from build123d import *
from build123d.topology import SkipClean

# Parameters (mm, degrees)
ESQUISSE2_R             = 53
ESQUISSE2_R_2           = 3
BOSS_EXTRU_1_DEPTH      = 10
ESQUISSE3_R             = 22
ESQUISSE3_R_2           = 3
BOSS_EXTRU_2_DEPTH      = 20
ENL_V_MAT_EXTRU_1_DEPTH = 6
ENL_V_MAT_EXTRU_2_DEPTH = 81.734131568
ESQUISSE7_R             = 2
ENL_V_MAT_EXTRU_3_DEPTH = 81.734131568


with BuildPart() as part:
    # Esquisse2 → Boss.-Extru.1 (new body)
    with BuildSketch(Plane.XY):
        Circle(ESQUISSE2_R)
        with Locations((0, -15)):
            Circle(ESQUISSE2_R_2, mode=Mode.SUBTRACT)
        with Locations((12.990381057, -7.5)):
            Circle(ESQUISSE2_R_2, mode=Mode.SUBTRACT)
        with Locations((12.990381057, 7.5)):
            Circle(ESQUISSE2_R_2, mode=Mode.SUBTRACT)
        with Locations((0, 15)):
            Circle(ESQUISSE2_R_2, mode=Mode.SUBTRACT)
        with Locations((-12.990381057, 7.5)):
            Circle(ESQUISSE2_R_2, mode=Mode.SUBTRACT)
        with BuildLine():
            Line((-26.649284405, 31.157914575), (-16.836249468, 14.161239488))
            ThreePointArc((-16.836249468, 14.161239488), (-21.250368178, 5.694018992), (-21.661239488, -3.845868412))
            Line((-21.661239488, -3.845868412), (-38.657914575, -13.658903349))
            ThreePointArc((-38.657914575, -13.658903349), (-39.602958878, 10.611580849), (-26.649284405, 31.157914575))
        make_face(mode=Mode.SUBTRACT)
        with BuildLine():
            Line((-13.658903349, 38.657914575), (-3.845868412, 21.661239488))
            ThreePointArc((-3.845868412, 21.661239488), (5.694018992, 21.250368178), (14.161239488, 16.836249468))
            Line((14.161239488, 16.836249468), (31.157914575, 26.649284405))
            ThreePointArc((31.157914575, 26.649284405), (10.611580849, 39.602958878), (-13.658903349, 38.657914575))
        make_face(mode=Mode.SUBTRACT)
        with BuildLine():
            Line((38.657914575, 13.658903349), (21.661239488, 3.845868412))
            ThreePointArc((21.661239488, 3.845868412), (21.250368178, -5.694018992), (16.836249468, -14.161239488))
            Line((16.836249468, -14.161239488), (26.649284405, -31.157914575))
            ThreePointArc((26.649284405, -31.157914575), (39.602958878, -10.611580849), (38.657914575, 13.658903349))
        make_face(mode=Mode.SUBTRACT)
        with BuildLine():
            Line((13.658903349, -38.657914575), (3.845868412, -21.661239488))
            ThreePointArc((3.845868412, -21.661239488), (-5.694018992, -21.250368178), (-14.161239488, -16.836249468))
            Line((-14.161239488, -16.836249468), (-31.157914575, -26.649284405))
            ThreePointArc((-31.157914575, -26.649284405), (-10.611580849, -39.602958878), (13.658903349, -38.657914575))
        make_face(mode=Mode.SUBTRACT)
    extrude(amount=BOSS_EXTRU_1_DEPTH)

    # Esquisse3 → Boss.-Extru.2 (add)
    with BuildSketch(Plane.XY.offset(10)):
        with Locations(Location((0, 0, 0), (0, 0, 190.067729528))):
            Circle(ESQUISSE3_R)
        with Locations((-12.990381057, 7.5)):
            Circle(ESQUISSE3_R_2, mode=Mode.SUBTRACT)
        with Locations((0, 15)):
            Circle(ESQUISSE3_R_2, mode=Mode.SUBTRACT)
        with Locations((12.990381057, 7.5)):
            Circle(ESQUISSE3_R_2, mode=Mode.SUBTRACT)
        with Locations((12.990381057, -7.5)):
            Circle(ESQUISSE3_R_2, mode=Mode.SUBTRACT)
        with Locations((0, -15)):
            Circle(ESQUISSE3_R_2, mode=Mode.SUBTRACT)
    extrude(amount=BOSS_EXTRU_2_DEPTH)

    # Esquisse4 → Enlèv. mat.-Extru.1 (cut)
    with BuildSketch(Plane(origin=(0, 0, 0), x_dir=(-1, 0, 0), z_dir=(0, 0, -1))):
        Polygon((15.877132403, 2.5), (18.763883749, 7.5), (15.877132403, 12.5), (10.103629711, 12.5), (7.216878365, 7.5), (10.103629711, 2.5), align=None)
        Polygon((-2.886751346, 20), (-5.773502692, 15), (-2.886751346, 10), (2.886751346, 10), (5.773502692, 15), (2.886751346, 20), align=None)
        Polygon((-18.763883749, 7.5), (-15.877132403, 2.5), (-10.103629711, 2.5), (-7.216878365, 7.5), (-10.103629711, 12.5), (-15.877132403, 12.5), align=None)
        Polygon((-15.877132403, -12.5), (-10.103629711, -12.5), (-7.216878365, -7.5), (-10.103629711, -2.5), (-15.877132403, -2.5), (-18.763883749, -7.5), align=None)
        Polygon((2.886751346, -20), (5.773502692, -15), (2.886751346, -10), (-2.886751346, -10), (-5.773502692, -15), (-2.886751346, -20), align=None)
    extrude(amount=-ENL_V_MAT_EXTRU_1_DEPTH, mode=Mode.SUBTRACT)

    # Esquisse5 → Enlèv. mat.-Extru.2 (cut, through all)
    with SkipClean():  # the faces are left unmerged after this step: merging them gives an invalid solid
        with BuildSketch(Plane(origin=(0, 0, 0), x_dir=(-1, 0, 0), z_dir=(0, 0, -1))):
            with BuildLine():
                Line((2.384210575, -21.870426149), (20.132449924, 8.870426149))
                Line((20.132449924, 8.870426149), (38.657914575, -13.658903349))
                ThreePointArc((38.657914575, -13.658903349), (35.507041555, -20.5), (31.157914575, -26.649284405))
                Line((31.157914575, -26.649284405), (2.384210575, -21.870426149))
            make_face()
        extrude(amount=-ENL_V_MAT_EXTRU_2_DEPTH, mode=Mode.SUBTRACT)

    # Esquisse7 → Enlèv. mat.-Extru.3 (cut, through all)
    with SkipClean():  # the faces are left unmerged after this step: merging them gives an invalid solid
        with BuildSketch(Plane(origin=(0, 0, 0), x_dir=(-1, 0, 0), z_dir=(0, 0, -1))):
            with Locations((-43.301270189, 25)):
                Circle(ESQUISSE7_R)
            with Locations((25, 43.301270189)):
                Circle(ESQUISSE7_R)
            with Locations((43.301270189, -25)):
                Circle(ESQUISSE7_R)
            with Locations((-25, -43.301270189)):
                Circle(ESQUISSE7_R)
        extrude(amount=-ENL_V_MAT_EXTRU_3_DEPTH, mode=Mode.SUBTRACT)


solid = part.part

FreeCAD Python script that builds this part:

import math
import FreeCAD as App
import Part
import Sketcher

V = App.Vector
Q = App.Units.Quantity


def add_polygon(sketch, points):
    """Adds a closed chain of lines whose ends are joined by coincident constraints."""
    first, n = sketch.GeometryCount, len(points)
    for a, b in zip(points, points[1:] + points[:1]):
        sketch.addGeometry(Part.LineSegment(App.Vector(*a, 0), App.Vector(*b, 0)), False)
    for i in range(n):
        sketch.addConstraint(Sketcher.Constraint("Coincident", first + i, 2, first + (i + 1) % n, 1))

doc = App.newDocument("Part")
body = doc.addObject("PartDesign::Body", "Body")

sketch1 = body.newObject("Sketcher::SketchObject", "Sketch")
sketch1.AttachmentSupport = (doc.getObject("XY_Plane"), [""])
sketch1.MapMode = "FlatFace"
sketch1.addGeometry([
    Part.Circle(V(0, 0, 0), V(0, 0, 1), 53),
    Part.LineSegment(V(3.845868, -21.661239, 0), V(13.658903, -38.657915, 0)),
    Part.ArcOfCircle(Part.Circle(V(0, 0, 0), V(0, 0, 1), 41), math.radians(-139.459714), math.radians(-70.540286)),
    Part.LineSegment(V(-31.157915, -26.649284, 0), V(-14.161239, -16.836249, 0)),
    Part.ArcOfCircle(Part.Circle(V(0, 0, 0), V(0, 0, 1), 22), math.radians(-130.06773), math.radians(-79.93227)),
    Part.Circle(V(0, -15, 0), V(0, 0, 1), 3),
    Part.Circle(V(12.990381, -7.5, 0), V(0, 0, 1), 3),
    Part.LineSegment(V(21.661239, 3.845868, 0), V(38.657915, 13.658903, 0)),
    Part.ArcOfCircle(Part.Circle(V(0, 0, 0), V(0, 0, 1), 41), math.radians(-49.459714), math.radians(19.459714)),
    Part.LineSegment(V(26.649284, -31.157915, 0), V(16.836249, -14.161239, 0)),
    Part.ArcOfCircle(Part.Circle(V(0, 0, 0), V(0, 0, 1), 22), math.radians(-40.06773), math.radians(10.06773)),
    Part.ArcOfCircle(Part.Circle(V(0, 0, 0), V(0, 0, 1), 41), math.radians(130.540286), math.radians(199.459714)),
    Part.LineSegment(V(-26.649284, 31.157915, 0), V(-16.836249, 14.161239, 0)),
    Part.ArcOfCircle(Part.Circle(V(0, 0, 0), V(0, 0, 1), 22), math.radians(139.93227), math.radians(190.06773)),
    Part.LineSegment(V(-21.661239, -3.845868, 0), V(-38.657915, -13.658903, 0)),
    Part.Circle(V(-12.990381, 7.5, 0), V(0, 0, 1), 3),
    Part.Circle(V(0, 15, 0), V(0, 0, 1), 3),
    Part.Circle(V(12.990381, 7.5, 0), V(0, 0, 1), 3),
    Part.LineSegment(V(-3.845868, 21.661239, 0), V(-13.658903, 38.657915, 0)),
    Part.ArcOfCircle(Part.Circle(V(0, 0, 0), V(0, 0, 1), 41), math.radians(40.540286), math.radians(109.459714)),
    Part.LineSegment(V(31.157915, 26.649284, 0), V(14.161239, 16.836249, 0)),
    Part.ArcOfCircle(Part.Circle(V(0, 0, 0), V(0, 0, 1), 22), math.radians(49.93227), math.radians(100.06773)),
], False)
sketch1.addConstraint([
    Sketcher.Constraint("Coincident", 1, 2, 2, 2),
    Sketcher.Constraint("Coincident", 2, 1, 3, 1),
    Sketcher.Constraint("Coincident", 3, 2, 4, 1),
    Sketcher.Constraint("Coincident", 4, 2, 1, 1),
    Sketcher.Constraint("Coincident", 7, 2, 8, 2),
    Sketcher.Constraint("Coincident", 8, 1, 9, 1),
    Sketcher.Constraint("Coincident", 9, 2, 10, 1),
    Sketcher.Constraint("Coincident", 10, 2, 7, 1),
    Sketcher.Constraint("Coincident", 11, 1, 12, 1),
    Sketcher.Constraint("Coincident", 12, 2, 13, 1),
    Sketcher.Constraint("Coincident", 13, 2, 14, 1),
    Sketcher.Constraint("Coincident", 14, 2, 11, 2),
    Sketcher.Constraint("Coincident", 18, 2, 19, 2),
    Sketcher.Constraint("Coincident", 19, 1, 20, 1),
    Sketcher.Constraint("Coincident", 20, 2, 21, 1),
    Sketcher.Constraint("Coincident", 21, 2, 18, 1),
    Sketcher.Constraint("Coincident", 0, 3, -1, 1),
    Sketcher.Constraint("Coincident", 2, 3, -1, 1),
    Sketcher.Constraint("Coincident", 4, 3, -1, 1),
    Sketcher.Constraint("Coincident", 8, 3, -1, 1),
    Sketcher.Constraint("Coincident", 10, 3, -1, 1),
    Sketcher.Constraint("Coincident", 11, 3, -1, 1),
    Sketcher.Constraint("Coincident", 13, 3, -1, 1),
    Sketcher.Constraint("Coincident", 19, 3, -1, 1),
    Sketcher.Constraint("Coincident", 21, 3, -1, 1),
    Sketcher.Constraint("Equal", 5, 6),
    Sketcher.Constraint("Equal", 2, 8),
    Sketcher.Constraint("Equal", 4, 10),
    Sketcher.Constraint("Equal", 8, 11),
    Sketcher.Constraint("Equal", 10, 13),
    Sketcher.Constraint("Equal", 6, 15),
    Sketcher.Constraint("Equal", 15, 16),
    Sketcher.Constraint("Equal", 16, 17),
    Sketcher.Constraint("Equal", 11, 19),
    Sketcher.Constraint("Equal", 13, 21),
    Sketcher.Constraint("Symmetric", 6, 3, 15, 3, -1, 1),
    Sketcher.Constraint("Symmetric", 5, 3, 16, 3, -1, 1),
    Sketcher.Constraint("Symmetric", 15, 3, 17, 3, -2),
    Sketcher.Constraint("PointOnObject", 5, 3, -2),
    Sketcher.Constraint("Perpendicular", 1, 3),
    Sketcher.Constraint("Parallel", 3, 7),
    Sketcher.Constraint("Perpendicular", 7, 9),
    Sketcher.Constraint("Parallel", 9, 12),
    Sketcher.Constraint("Perpendicular", 12, 14),
    Sketcher.Constraint("Perpendicular", 14, 18),
    Sketcher.Constraint("Perpendicular", 18, 20),
    Sketcher.Constraint("Equal", 1, 3),
    Sketcher.Constraint("Equal", 3, 7),
    Sketcher.Constraint("Equal", 7, 9),
    Sketcher.Constraint("Equal", 9, 12),
    Sketcher.Constraint("Equal", 12, 14),
    Sketcher.Constraint("Equal", 14, 18),
    Sketcher.Constraint("Equal", 18, 20),
    Sketcher.Constraint("Diameter", 0, Q("106 mm")),
    Sketcher.Constraint("Diameter", 5, Q("6 mm")),
    Sketcher.Constraint("Radius", 2, Q("41 mm")),
    Sketcher.Constraint("Radius", 4, Q("22 mm")),
    Sketcher.Constraint("Angle", 1, Q("-60 deg")),
    Sketcher.Constraint("DistanceY", 5, 3, -1, 1, Q("15 mm")),
    Sketcher.Constraint("DistanceY", 6, 3, 17, 3, Q("15 mm")),
    Sketcher.Constraint("DistanceY", 1, 2, 8, 1, Q("7.5 mm")),
    Sketcher.Constraint("DistanceX", -1, 1, 6, 3, Q("12.990381 mm")),
])
pad1 = body.newObject("PartDesign::Pad", "Pad")
pad1.Profile = sketch1
pad1.Length = 10

sketch2 = body.newObject("Sketcher::SketchObject", "Sketch001")
sketch2.AttachmentSupport = (doc.getObject("XY_Plane"), [""])
sketch2.MapMode = "FlatFace"
sketch2.AttachmentOffset = App.Placement(V(0, 0, 10), App.Rotation())
sketch2.addGeometry([
    Part.Circle(V(0, 0, 0), V(0, 0, 1), 22),
    Part.Circle(V(0, 15, 0), V(0, 0, 1), 3),
    Part.Circle(V(12.990381, 7.5, 0), V(0, 0, 1), 3),
    Part.Circle(V(-12.990381, 7.5, 0), V(0, 0, 1), 3),
    Part.Circle(V(12.990381, -7.5, 0), V(0, 0, 1), 3),
    Part.Circle(V(0, -15, 0), V(0, 0, 1), 3),
], False)
sketch2.addConstraint([
    Sketcher.Constraint("Coincident", 0, 3, -1, 1),
    Sketcher.Constraint("Equal", 1, 2),
    Sketcher.Constraint("Equal", 2, 3),
    Sketcher.Constraint("Equal", 3, 4),
    Sketcher.Constraint("Equal", 4, 5),
    Sketcher.Constraint("Symmetric", 3, 3, 4, 3, -1, 1),
    Sketcher.Constraint("Symmetric", 1, 3, 5, 3, -1, 1),
    Sketcher.Constraint("Symmetric", 2, 3, 3, 3, -2),
    Sketcher.Constraint("PointOnObject", 1, 3, -2),
    Sketcher.Constraint("Diameter", 0, Q("44 mm")),
    Sketcher.Constraint("Diameter", 1, Q("6 mm")),
    Sketcher.Constraint("DistanceY", -1, 1, 1, 3, Q("15 mm")),
    Sketcher.Constraint("DistanceY", 4, 3, 2, 3, Q("15 mm")),
    Sketcher.Constraint("DistanceX", -1, 1, 2, 3, Q("12.990381 mm")),
])
pad2 = body.newObject("PartDesign::Pad", "Pad001")
pad2.Profile = sketch2
pad2.Length = 20

sketch3 = body.newObject("Sketcher::SketchObject", "Sketch002")
sketch3.AttachmentSupport = (doc.getObject("XY_Plane"), [""])
sketch3.MapMode = "FlatFace"
add_polygon(sketch3, [(-15.877132, 2.5), (-18.763884, 7.5), (-15.877132, 12.5), (-10.10363, 12.5), (-7.216878, 7.5), (-10.10363, 2.5)])
add_polygon(sketch3, [(2.886751, 20), (5.773503, 15), (2.886751, 10), (-2.886751, 10), (-5.773503, 15), (-2.886751, 20)])
add_polygon(sketch3, [(18.763884, 7.5), (15.877132, 2.5), (10.10363, 2.5), (7.216878, 7.5), (10.10363, 12.5), (15.877132, 12.5)])
add_polygon(sketch3, [(15.877132, -12.5), (10.10363, -12.5), (7.216878, -7.5), (10.10363, -2.5), (15.877132, -2.5), (18.763884, -7.5)])
add_polygon(sketch3, [(-2.886751, -20), (-5.773503, -15), (-2.886751, -10), (2.886751, -10), (5.773503, -15), (2.886751, -20)])
sketch3.addConstraint([
    Sketcher.Constraint("Horizontal", 2),
    Sketcher.Constraint("Horizontal", 5),
    Sketcher.Constraint("Horizontal", 8),
    Sketcher.Constraint("Horizontal", 11),
    Sketcher.Constraint("Horizontal", 13),
    Sketcher.Constraint("Horizontal", 16),
    Sketcher.Constraint("Horizontal", 18),
    Sketcher.Constraint("Horizontal", 21),
    Sketcher.Constraint("Horizontal", 26),
    Sketcher.Constraint("Horizontal", 29),
    Sketcher.Constraint("Symmetric", 2, 2, 18, 2, -1, 1),
    Sketcher.Constraint("Symmetric", 3, 2, 19, 2, -1, 1),
    Sketcher.Constraint("Symmetric", 4, 2, 20, 2, -1, 1),
    Sketcher.Constraint("Symmetric", 0, 2, 22, 2, -1, 1),
    Sketcher.Constraint("Symmetric", 6, 2, 24, 2, -1, 1),
    Sketcher.Constraint("Symmetric", 7, 2, 25, 2, -1, 1),
    Sketcher.Constraint("Symmetric", 9, 2, 27, 2, -1, 1),
    Sketcher.Constraint("Symmetric", 10, 2, 28, 2, -1, 1),
    Sketcher.Constraint("Symmetric", 6, 2, 9, 2, -2),
    Sketcher.Constraint("Symmetric", 5, 2, 12, 2, -2),
    Sketcher.Constraint("Symmetric", 3, 2, 14, 2, -2),
    Sketcher.Constraint("Symmetric", 2, 2, 15, 2, -2),
    Sketcher.Constraint("Symmetric", 0, 2, 17, 2, -2),
    Sketcher.Constraint("Parallel", 0, 3),
    Sketcher.Constraint("Parallel", 1, 4),
    Sketcher.Constraint("Parallel", 3, 6),
    Sketcher.Constraint("Parallel", 4, 7),
    Sketcher.Constraint("Parallel", 6, 9),
    Sketcher.Constraint("Parallel", 7, 10),
    Sketcher.Constraint("Parallel", 10, 12),
    Sketcher.Constraint("Parallel", 9, 14),
    Sketcher.Constraint("Parallel", 14, 17),
    Sketcher.Constraint("Parallel", 19, 22),
    Sketcher.Constraint("Parallel", 20, 23),
    Sketcher.Constraint("Parallel", 22, 24),
    Sketcher.Constraint("Parallel", 24, 27),
    Sketcher.Constraint("Horizontal", 0, 2, 3, 2),
    Sketcher.Constraint("Vertical", 2, 2, 4, 2),
    Sketcher.Constraint("Vertical", 8, 2, 10, 2),
    Sketcher.Constraint("Equal", 5, 8),
    Sketcher.Constraint("Equal", 4, 6),
    Sketcher.Constraint("Angle", 0, Q("120 deg")),
    Sketcher.Constraint("DistanceY", -1, 1, 6, 2, Q("15 mm")),
    Sketcher.Constraint("DistanceY", -1, 1, 7, 2, Q("10 mm")),
    Sketcher.Constraint("DistanceY", 18, 2, 13, 2, Q("15 mm")),
    Sketcher.Constraint("DistanceX", 2, 1, 2, 2, Q("5.773503 mm")),
    Sketcher.Constraint("DistanceX", 2, 2, -1, 1, Q("10.10363 mm")),
])
pocket1 = body.newObject("PartDesign::Pocket", "Pocket")
pocket1.Profile = sketch3
pocket1.Length = 6
pocket1.Reversed = True

sketch4 = body.newObject("Sketcher::SketchObject", "Sketch003")
sketch4.AttachmentSupport = (doc.getObject("XY_Plane"), [""])
sketch4.MapMode = "FlatFace"
sketch4.addGeometry([
    Part.LineSegment(V(-20.13245, 8.870426, 0), V(-2.384211, -21.870426, 0)),
    Part.LineSegment(V(-2.384211, -21.870426, 0), V(-31.157915, -26.649284, 0)),
    Part.ArcOfCircle(Part.Circle(V(0, 0, 0), V(0, 0, 1), 41), math.radians(-160.540286), math.radians(-139.459714)),
    Part.LineSegment(V(-38.657915, -13.658903, 0), V(-20.13245, 8.870426, 0)),
], False)
sketch4.addConstraint([
    Sketcher.Constraint("Coincident", 0, 2, 1, 1),
    Sketcher.Constraint("Coincident", 1, 2, 2, 2),
    Sketcher.Constraint("Coincident", 2, 1, 3, 1),
    Sketcher.Constraint("Coincident", 3, 2, 0, 1),
    Sketcher.Constraint("Coincident", 2, 3, -1, 1),
    Sketcher.Constraint("Equal", 1, 3),
    Sketcher.Constraint("Radius", 2, Q("41 mm")),
    Sketcher.Constraint("Angle", 0, Q("-60 deg")),
    Sketcher.Constraint("DistanceX", 2, 1, 1, 2, Q("7.5 mm")),
    Sketcher.Constraint("Distance", 0, Q("35.496479 mm")),
    Sketcher.Constraint("Distance", 1, Q("29.167851 mm")),
    Sketcher.Constraint("DistanceX", 0, 2, -1, 1, Q("2.384211 mm")),
])
pocket2 = body.newObject("PartDesign::Pocket", "Pocket001")
pocket2.Profile = sketch4
pocket2.Type = "ThroughAll"
pocket2.Reversed = True

sketch5 = body.newObject("Sketcher::SketchObject", "Sketch004")
sketch5.AttachmentSupport = (doc.getObject("XY_Plane"), [""])
sketch5.MapMode = "FlatFace"
sketch5.addGeometry([
    Part.Circle(V(43.30127, 25, 0), V(0, 0, 1), 2),
    Part.Circle(V(-25, 43.30127, 0), V(0, 0, 1), 2),
    Part.Circle(V(-43.30127, -25, 0), V(0, 0, 1), 2),
    Part.Circle(V(25, -43.30127, 0), V(0, 0, 1), 2),
], False)
sketch5.addConstraint([
    Sketcher.Constraint("Equal", 0, 1),
    Sketcher.Constraint("Equal", 1, 2),
    Sketcher.Constraint("Equal", 2, 3),
    Sketcher.Constraint("Symmetric", 0, 3, 2, 3, -1, 1),
    Sketcher.Constraint("Symmetric", 1, 3, 3, 3, -1, 1),
    Sketcher.Constraint("Diameter", 0, Q("4 mm")),
    Sketcher.Constraint("DistanceY", -1, 1, 0, 3, Q("25 mm")),
    Sketcher.Constraint("DistanceX", 1, 3, -1, 1, Q("25 mm")),
    Sketcher.Constraint("DistanceX", -1, 1, 0, 3, Q("43.30127 mm")),
    Sketcher.Constraint("DistanceY", -1, 1, 1, 3, Q("43.30127 mm")),
])
pocket3 = body.newObject("PartDesign::Pocket", "Pocket002")
pocket3.Profile = sketch5
pocket3.Type = "ThroughAll"
pocket3.Reversed = True

doc.recompute()
